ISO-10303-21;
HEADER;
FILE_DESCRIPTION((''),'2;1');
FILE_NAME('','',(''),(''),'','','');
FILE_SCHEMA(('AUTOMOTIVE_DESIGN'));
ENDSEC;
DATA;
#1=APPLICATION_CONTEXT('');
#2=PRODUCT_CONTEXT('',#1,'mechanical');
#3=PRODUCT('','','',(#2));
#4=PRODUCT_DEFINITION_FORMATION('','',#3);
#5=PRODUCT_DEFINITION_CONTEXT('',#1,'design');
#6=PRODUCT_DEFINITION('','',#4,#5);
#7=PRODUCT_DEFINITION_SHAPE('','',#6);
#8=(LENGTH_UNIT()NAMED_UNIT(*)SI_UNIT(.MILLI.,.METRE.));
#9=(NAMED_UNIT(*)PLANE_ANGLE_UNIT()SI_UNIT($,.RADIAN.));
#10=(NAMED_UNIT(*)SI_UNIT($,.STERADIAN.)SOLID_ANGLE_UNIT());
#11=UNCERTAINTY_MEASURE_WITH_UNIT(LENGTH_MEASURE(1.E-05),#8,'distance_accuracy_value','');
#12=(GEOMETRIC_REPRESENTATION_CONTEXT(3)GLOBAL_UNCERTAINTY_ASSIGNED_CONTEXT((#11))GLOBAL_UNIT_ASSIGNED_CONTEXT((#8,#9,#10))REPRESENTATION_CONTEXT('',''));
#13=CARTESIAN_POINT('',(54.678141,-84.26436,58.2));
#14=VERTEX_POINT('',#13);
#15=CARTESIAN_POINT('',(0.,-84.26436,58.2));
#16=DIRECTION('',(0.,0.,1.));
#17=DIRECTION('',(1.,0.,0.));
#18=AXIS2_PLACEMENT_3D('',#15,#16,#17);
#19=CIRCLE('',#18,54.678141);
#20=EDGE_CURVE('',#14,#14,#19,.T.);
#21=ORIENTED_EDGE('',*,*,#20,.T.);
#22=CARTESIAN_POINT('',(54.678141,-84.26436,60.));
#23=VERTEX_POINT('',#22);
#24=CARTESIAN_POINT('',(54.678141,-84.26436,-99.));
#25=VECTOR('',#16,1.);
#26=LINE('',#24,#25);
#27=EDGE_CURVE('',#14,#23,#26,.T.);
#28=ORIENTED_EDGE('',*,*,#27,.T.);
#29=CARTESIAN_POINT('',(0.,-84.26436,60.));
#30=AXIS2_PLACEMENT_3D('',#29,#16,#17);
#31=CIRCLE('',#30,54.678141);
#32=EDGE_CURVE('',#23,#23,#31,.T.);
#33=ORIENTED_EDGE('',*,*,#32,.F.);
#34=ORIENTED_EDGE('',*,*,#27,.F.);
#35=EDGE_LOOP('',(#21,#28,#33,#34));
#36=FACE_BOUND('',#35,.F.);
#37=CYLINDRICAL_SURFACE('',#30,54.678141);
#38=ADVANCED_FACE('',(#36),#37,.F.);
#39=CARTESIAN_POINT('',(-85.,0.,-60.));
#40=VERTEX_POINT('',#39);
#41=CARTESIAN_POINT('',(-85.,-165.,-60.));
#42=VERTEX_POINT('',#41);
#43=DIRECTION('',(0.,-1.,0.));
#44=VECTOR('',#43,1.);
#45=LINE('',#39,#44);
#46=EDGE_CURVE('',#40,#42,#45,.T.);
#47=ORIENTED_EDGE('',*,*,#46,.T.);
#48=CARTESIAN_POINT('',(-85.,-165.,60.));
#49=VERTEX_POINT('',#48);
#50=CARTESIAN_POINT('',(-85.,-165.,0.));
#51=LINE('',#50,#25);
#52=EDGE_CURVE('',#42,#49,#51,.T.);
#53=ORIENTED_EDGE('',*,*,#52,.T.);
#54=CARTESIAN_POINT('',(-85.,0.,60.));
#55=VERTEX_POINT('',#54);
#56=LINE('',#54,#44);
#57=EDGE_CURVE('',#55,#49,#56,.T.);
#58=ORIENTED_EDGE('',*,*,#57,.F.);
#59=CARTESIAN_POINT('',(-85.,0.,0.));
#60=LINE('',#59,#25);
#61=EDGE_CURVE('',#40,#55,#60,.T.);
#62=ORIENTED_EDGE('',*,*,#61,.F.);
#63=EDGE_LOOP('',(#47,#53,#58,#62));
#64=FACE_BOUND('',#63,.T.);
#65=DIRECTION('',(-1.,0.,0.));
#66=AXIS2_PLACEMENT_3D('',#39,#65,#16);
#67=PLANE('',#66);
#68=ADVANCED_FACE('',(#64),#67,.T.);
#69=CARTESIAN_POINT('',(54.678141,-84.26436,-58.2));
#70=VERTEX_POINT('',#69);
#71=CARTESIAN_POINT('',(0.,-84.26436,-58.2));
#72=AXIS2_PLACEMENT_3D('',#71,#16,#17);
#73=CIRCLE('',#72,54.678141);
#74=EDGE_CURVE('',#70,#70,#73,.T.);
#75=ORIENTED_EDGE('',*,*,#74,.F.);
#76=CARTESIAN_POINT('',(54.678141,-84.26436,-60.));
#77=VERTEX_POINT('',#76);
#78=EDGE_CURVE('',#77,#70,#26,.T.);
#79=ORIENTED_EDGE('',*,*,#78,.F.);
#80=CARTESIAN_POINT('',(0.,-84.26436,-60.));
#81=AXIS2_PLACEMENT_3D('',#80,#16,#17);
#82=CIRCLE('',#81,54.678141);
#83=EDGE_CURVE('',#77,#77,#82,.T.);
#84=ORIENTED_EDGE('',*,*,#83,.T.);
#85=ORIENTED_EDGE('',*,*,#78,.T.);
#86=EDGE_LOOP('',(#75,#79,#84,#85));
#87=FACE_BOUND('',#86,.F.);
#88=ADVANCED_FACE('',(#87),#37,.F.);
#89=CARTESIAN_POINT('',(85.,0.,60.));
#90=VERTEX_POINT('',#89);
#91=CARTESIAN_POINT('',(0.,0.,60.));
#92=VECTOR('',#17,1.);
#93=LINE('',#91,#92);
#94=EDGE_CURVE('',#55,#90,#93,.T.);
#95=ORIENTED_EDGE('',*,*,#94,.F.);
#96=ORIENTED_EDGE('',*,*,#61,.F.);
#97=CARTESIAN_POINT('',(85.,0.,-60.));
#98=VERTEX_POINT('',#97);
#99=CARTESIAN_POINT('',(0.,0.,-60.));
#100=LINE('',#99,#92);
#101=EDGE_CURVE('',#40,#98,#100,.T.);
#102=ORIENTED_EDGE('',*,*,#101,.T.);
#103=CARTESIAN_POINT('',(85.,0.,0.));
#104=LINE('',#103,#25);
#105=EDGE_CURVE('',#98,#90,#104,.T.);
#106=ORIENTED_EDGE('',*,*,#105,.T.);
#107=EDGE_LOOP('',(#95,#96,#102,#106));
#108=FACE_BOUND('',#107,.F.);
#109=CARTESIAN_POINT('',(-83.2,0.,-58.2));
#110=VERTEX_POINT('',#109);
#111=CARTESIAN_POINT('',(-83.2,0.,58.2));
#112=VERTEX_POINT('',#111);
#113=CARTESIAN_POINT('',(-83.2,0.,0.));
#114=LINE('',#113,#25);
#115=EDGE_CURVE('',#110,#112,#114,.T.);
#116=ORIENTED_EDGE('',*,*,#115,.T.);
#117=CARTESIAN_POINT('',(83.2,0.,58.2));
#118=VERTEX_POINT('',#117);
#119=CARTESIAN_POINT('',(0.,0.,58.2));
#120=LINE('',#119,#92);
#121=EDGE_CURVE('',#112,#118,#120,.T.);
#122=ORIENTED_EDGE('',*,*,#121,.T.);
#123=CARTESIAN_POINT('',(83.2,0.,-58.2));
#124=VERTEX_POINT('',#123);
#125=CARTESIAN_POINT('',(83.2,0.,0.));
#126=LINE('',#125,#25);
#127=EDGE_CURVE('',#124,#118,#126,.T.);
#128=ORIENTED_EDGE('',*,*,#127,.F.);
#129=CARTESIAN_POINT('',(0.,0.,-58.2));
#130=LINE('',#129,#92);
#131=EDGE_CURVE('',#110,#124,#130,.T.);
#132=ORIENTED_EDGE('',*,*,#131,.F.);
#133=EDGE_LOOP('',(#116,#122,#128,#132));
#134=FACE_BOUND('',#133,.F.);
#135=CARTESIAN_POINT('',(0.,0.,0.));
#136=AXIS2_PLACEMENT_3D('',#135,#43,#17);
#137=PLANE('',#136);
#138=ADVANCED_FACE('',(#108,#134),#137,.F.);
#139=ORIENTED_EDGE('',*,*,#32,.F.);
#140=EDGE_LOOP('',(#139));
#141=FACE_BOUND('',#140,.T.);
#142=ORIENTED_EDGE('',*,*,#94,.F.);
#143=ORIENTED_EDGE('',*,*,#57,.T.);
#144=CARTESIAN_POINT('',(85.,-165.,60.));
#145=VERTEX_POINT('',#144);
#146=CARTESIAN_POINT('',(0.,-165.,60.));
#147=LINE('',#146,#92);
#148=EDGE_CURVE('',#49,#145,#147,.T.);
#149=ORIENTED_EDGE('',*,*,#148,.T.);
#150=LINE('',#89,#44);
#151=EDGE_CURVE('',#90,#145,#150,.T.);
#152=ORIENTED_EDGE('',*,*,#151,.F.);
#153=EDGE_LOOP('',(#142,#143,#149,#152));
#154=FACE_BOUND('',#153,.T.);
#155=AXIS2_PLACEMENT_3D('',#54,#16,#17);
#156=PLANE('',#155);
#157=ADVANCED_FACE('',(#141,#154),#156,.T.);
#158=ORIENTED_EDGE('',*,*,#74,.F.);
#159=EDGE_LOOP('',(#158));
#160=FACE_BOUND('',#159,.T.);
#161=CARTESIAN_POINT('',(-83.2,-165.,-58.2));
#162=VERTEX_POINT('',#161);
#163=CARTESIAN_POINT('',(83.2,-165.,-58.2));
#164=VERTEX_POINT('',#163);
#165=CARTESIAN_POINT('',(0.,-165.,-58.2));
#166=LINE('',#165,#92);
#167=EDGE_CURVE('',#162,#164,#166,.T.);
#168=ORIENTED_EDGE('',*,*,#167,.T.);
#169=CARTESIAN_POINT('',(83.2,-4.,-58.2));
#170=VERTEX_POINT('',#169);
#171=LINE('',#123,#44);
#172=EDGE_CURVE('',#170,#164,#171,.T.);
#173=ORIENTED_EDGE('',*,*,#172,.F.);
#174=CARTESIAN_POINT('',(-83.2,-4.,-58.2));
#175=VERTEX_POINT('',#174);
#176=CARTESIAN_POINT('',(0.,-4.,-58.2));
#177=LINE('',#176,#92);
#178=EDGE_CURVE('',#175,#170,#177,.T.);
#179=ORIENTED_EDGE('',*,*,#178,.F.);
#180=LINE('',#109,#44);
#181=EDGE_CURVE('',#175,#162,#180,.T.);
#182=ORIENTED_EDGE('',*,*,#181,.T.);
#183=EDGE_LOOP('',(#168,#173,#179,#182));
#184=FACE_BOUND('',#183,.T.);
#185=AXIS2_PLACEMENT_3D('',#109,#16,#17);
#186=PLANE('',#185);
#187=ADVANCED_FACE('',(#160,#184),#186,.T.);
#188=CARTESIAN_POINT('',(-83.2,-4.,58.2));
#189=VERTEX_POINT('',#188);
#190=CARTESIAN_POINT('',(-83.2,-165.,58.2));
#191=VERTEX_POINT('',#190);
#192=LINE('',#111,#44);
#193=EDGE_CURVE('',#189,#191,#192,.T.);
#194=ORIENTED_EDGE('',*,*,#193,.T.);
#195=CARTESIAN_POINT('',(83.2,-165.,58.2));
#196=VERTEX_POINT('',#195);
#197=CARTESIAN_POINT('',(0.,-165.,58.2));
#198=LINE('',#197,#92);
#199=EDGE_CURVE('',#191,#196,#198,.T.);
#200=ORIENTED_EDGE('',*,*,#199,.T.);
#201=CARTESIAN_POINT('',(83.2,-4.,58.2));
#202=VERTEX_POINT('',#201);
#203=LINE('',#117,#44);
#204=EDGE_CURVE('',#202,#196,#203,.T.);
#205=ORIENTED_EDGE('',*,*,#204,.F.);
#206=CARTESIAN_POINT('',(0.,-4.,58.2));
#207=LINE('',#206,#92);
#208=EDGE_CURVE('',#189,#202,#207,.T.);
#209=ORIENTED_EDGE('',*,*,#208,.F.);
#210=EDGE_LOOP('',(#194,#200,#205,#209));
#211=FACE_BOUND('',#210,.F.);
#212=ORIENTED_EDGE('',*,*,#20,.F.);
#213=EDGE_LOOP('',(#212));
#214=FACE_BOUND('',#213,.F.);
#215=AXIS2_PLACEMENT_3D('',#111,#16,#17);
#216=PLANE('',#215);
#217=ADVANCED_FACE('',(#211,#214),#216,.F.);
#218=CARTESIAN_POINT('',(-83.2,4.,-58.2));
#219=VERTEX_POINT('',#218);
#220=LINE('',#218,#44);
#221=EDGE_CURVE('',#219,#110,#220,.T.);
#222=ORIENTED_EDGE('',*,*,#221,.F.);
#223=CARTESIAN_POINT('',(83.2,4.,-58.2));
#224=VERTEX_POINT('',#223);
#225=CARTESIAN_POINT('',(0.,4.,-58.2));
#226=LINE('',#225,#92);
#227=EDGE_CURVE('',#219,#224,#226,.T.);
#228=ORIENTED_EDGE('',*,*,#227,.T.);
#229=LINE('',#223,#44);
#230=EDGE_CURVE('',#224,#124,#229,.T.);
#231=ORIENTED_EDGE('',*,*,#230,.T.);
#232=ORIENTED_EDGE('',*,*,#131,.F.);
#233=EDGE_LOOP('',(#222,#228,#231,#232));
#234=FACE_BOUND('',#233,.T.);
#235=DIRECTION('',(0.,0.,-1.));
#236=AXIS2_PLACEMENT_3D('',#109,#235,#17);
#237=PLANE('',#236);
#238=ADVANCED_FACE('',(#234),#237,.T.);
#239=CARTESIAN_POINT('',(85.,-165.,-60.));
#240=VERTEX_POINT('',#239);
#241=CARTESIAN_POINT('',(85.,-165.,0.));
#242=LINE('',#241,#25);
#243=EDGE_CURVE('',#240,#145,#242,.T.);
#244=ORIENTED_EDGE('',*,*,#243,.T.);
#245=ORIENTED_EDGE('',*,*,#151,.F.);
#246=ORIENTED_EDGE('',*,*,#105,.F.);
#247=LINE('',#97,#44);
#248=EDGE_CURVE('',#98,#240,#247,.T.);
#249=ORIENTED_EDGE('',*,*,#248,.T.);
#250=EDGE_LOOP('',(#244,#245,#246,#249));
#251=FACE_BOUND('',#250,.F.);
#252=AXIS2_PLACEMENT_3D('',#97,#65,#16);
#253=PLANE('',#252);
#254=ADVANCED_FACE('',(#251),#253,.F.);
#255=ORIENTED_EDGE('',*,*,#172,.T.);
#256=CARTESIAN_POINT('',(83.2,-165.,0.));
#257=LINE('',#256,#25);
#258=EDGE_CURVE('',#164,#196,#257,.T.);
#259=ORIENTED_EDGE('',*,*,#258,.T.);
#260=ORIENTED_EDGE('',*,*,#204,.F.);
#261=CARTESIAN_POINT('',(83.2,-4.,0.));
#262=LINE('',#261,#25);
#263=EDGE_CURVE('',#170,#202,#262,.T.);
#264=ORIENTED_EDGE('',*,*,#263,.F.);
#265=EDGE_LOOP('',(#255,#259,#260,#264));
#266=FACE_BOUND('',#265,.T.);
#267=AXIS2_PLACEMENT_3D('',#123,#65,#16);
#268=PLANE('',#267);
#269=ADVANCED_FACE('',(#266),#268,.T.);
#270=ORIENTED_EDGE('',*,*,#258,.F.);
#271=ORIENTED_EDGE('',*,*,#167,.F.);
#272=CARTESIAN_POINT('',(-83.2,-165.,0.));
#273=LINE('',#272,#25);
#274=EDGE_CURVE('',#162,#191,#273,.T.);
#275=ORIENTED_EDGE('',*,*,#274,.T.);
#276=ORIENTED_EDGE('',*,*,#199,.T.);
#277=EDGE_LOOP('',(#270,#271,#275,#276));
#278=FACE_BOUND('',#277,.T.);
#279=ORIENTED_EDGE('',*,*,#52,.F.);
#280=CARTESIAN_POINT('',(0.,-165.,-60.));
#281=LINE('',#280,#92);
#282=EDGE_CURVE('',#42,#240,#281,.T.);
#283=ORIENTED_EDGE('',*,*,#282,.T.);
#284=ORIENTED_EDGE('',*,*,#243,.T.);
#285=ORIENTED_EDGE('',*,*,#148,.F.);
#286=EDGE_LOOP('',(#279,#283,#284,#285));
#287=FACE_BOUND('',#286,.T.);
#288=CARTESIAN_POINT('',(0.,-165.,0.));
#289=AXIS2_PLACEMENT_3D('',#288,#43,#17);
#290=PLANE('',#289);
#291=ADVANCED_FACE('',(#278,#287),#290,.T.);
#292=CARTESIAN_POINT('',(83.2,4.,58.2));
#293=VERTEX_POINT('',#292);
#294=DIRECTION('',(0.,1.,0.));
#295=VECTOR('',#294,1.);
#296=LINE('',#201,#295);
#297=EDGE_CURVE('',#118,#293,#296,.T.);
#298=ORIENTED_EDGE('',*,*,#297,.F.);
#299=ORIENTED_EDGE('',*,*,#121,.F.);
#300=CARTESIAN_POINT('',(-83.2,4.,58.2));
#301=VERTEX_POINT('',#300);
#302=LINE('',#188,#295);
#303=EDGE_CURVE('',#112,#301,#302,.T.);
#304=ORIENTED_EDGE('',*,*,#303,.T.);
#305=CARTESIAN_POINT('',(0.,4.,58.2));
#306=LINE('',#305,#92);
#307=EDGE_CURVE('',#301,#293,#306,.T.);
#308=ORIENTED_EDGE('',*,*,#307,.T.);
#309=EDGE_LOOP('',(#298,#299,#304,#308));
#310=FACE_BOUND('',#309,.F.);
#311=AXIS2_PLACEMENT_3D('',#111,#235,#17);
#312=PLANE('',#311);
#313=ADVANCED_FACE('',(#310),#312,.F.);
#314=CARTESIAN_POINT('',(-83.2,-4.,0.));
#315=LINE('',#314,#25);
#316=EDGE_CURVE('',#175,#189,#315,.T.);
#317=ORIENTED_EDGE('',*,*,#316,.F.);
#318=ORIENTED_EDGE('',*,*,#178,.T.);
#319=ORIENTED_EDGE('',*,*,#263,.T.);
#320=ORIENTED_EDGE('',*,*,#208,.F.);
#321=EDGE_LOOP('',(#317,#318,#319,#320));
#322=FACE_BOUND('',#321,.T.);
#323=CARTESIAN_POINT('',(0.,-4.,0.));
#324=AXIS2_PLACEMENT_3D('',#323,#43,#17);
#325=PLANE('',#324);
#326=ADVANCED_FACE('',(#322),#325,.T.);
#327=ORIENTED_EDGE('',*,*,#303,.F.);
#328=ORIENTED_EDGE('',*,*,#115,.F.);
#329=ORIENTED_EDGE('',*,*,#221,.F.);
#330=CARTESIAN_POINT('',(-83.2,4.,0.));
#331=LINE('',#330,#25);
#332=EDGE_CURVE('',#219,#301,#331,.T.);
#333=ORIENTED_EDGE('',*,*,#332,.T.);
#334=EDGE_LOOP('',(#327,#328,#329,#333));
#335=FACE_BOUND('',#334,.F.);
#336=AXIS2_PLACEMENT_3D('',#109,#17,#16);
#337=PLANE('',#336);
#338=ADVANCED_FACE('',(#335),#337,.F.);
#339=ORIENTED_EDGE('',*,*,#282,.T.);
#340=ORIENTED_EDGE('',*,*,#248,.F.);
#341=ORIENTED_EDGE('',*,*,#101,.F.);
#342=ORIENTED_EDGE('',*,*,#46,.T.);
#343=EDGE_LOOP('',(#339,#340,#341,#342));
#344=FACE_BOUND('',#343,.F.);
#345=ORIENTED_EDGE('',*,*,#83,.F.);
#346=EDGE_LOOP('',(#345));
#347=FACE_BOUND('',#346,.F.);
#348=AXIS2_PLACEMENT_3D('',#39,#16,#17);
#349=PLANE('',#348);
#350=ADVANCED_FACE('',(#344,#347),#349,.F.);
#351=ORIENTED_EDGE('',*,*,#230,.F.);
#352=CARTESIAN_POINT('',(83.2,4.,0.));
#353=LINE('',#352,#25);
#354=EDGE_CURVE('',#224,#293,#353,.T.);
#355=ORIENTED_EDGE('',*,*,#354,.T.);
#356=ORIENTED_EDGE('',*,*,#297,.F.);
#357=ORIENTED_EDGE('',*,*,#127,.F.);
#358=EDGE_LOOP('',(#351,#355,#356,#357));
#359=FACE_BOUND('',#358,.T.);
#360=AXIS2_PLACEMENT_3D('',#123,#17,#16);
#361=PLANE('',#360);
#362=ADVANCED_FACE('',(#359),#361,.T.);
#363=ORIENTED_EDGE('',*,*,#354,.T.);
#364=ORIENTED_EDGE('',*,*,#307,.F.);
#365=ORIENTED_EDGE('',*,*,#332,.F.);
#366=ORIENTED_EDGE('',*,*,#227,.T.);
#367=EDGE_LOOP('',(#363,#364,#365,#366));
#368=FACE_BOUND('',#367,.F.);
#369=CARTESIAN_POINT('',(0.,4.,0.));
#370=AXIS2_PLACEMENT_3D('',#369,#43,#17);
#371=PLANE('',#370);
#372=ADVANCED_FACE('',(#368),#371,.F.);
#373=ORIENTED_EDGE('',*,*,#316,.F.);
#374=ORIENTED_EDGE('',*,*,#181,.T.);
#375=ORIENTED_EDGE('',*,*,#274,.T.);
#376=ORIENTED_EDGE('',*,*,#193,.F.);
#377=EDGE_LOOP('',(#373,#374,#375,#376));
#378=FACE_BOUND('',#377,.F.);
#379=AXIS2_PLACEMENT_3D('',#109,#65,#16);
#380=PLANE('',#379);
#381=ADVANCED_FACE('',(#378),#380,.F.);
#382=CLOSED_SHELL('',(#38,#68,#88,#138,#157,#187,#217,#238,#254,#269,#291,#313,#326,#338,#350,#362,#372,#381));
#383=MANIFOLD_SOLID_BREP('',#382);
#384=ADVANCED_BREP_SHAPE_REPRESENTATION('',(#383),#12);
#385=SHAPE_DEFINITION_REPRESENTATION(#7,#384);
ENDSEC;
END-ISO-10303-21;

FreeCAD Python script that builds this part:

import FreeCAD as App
import Part
import Sketcher
Q = App.Units.Quantity

doc = App.newDocument("Part")
body = doc.addObject("PartDesign::Body", "Body")

# Sketch on XZ plane
sketch1 = body.newObject("Sketcher::SketchObject", "Sketch")
sketch1.AttachmentSupport = (doc.getObject("XZ_Plane"), [""])
sketch1.MapMode = "FlatFace"
sketch1.addGeometry([
    Part.LineSegment(App.Vector(-85, 60, 0), App.Vector(-85, -60, 0)),  # 0
    Part.LineSegment(App.Vector(-85, -60, 0), App.Vector(85, -60, 0)),  # 1
    Part.LineSegment(App.Vector(85, -60, 0), App.Vector(85, 60, 0)),  # 2
    Part.LineSegment(App.Vector(85, 60, 0), App.Vector(-85, 60, 0)),  # 3
    Part.LineSegment(App.Vector(83, -58, 0), App.Vector(-83, -58, 0)),  # 4
    Part.LineSegment(App.Vector(-83, -58, 0), App.Vector(-83, 58, 0)),  # 5
    Part.LineSegment(App.Vector(-83, 58, 0), App.Vector(83, 58, 0)),  # 6
    Part.LineSegment(App.Vector(83, 58, 0), App.Vector(83, -58, 0)),  # 7
], False)
sketch1.addConstraint([
    Sketcher.Constraint("Coincident", 0, 2, 1, 1),
    Sketcher.Constraint("Coincident", 1, 2, 2, 1),
    Sketcher.Constraint("Coincident", 2, 2, 3, 1),
    Sketcher.Constraint("Coincident", 3, 2, 0, 1),
    Sketcher.Constraint("Coincident", 4, 2, 5, 1),
    Sketcher.Constraint("Coincident", 5, 2, 6, 1),
    Sketcher.Constraint("Coincident", 6, 2, 7, 1),
    Sketcher.Constraint("Coincident", 7, 2, 4, 1),
    Sketcher.Constraint("Vertical", 0),
    Sketcher.Constraint("Horizontal", 1),
    Sketcher.Constraint("Vertical", 2),
    Sketcher.Constraint("Horizontal", 3),
    Sketcher.Constraint("Horizontal", 4),
    Sketcher.Constraint("Vertical", 5),
    Sketcher.Constraint("Horizontal", 6),
    Sketcher.Constraint("Vertical", 7),
    Sketcher.Constraint("Symmetric", 0, 2, 2, 2, -1, 1),
    Sketcher.Constraint("Symmetric", 4, 2, 6, 2, -1, 1),
    Sketcher.Constraint("DistanceX", 1, 1, 1, 2, Q("170 mm")),
    Sketcher.Constraint("DistanceY", 0, 2, 0, 1, Q("120 mm")),
    Sketcher.Constraint("DistanceX", 4, 2, 4, 1, Q("166.4 mm")),
    Sketcher.Constraint("DistanceY", 5, 1, 5, 2, Q("116.4 mm")),
])
pad1 = body.newObject("PartDesign::Pad", "Pad")
pad1.Profile = sketch1
pad1.Length = 165
body2 = doc.addObject("PartDesign::Body", "Body001")

# Sketch on XY plane
sketch2 = body2.newObject("Sketcher::SketchObject", "Sketch001")
sketch2.AttachmentSupport = (doc.getObject("XY_Plane001"), [""])
sketch2.MapMode = "FlatFace"
sketch2.AttachmentOffset = App.Placement(App.Vector(0, 0, 60), App.Rotation())
sketch2.addGeometry(Part.Circle(App.Vector(0, -84, 0), App.Vector(0, 0, 1), 55), False)
sketch2.addConstraint([
    Sketcher.Constraint("PointOnObject", 0, 3, -2),
    Sketcher.Constraint("Diameter", 0, Q("109.356282 mm")),
    Sketcher.Constraint("DistanceY", 0, 3, -1, 1, Q("84.26436 mm")),
])
pad2 = body2.newObject("PartDesign::Pad", "Pad001")
pad2.Profile = sketch2
pad2.Length = 318
pad2.Midplane = True
doc.recompute()

boolean = body.newObject("PartDesign::Boolean", "Boolean")
boolean.Type = "Cut"
boolean.addObjects([body2])

# Sketch on XZ plane
sketch3 = body.newObject("Sketcher::SketchObject", "Sketch002")
sketch3.AttachmentSupport = (doc.getObject("XZ_Plane"), [""])
sketch3.MapMode = "FlatFace"
sketch3.addGeometry([
    Part.LineSegment(App.Vector(-83, 58, 0), App.Vector(-83, -58, 0)),
    Part.LineSegment(App.Vector(-83, -58, 0), App.Vector(83, -58, 0)),
    Part.LineSegment(App.Vector(83, -58, 0), App.Vector(83, 58, 0)),
    Part.LineSegment(App.Vector(83, 58, 0), App.Vector(-83, 58, 0)),
], False)
sketch3.addConstraint([
    Sketcher.Constraint("Coincident", 0, 2, 1, 1),
    Sketcher.Constraint("Coincident", 1, 2, 2, 1),
    Sketcher.Constraint("Coincident", 2, 2, 3, 1),
    Sketcher.Constraint("Coincident", 3, 2, 0, 1),
    Sketcher.Constraint("Vertical", 0),
    Sketcher.Constraint("Horizontal", 1),
    Sketcher.Constraint("Vertical", 2),
    Sketcher.Constraint("Horizontal", 3),
    Sketcher.Constraint("Symmetric", 0, 2, 2, 2, -1, 1),
    Sketcher.Constraint("DistanceX", 1, 1, 1, 2, Q("166.4 mm")),
    Sketcher.Constraint("DistanceY", 0, 2, 0, 1, Q("116.4 mm")),
])
pad3 = body.newObject("PartDesign::Pad", "Pad002")
pad3.Profile = sketch3
pad3.Length = 8
pad3.Midplane = True

doc.recompute()
